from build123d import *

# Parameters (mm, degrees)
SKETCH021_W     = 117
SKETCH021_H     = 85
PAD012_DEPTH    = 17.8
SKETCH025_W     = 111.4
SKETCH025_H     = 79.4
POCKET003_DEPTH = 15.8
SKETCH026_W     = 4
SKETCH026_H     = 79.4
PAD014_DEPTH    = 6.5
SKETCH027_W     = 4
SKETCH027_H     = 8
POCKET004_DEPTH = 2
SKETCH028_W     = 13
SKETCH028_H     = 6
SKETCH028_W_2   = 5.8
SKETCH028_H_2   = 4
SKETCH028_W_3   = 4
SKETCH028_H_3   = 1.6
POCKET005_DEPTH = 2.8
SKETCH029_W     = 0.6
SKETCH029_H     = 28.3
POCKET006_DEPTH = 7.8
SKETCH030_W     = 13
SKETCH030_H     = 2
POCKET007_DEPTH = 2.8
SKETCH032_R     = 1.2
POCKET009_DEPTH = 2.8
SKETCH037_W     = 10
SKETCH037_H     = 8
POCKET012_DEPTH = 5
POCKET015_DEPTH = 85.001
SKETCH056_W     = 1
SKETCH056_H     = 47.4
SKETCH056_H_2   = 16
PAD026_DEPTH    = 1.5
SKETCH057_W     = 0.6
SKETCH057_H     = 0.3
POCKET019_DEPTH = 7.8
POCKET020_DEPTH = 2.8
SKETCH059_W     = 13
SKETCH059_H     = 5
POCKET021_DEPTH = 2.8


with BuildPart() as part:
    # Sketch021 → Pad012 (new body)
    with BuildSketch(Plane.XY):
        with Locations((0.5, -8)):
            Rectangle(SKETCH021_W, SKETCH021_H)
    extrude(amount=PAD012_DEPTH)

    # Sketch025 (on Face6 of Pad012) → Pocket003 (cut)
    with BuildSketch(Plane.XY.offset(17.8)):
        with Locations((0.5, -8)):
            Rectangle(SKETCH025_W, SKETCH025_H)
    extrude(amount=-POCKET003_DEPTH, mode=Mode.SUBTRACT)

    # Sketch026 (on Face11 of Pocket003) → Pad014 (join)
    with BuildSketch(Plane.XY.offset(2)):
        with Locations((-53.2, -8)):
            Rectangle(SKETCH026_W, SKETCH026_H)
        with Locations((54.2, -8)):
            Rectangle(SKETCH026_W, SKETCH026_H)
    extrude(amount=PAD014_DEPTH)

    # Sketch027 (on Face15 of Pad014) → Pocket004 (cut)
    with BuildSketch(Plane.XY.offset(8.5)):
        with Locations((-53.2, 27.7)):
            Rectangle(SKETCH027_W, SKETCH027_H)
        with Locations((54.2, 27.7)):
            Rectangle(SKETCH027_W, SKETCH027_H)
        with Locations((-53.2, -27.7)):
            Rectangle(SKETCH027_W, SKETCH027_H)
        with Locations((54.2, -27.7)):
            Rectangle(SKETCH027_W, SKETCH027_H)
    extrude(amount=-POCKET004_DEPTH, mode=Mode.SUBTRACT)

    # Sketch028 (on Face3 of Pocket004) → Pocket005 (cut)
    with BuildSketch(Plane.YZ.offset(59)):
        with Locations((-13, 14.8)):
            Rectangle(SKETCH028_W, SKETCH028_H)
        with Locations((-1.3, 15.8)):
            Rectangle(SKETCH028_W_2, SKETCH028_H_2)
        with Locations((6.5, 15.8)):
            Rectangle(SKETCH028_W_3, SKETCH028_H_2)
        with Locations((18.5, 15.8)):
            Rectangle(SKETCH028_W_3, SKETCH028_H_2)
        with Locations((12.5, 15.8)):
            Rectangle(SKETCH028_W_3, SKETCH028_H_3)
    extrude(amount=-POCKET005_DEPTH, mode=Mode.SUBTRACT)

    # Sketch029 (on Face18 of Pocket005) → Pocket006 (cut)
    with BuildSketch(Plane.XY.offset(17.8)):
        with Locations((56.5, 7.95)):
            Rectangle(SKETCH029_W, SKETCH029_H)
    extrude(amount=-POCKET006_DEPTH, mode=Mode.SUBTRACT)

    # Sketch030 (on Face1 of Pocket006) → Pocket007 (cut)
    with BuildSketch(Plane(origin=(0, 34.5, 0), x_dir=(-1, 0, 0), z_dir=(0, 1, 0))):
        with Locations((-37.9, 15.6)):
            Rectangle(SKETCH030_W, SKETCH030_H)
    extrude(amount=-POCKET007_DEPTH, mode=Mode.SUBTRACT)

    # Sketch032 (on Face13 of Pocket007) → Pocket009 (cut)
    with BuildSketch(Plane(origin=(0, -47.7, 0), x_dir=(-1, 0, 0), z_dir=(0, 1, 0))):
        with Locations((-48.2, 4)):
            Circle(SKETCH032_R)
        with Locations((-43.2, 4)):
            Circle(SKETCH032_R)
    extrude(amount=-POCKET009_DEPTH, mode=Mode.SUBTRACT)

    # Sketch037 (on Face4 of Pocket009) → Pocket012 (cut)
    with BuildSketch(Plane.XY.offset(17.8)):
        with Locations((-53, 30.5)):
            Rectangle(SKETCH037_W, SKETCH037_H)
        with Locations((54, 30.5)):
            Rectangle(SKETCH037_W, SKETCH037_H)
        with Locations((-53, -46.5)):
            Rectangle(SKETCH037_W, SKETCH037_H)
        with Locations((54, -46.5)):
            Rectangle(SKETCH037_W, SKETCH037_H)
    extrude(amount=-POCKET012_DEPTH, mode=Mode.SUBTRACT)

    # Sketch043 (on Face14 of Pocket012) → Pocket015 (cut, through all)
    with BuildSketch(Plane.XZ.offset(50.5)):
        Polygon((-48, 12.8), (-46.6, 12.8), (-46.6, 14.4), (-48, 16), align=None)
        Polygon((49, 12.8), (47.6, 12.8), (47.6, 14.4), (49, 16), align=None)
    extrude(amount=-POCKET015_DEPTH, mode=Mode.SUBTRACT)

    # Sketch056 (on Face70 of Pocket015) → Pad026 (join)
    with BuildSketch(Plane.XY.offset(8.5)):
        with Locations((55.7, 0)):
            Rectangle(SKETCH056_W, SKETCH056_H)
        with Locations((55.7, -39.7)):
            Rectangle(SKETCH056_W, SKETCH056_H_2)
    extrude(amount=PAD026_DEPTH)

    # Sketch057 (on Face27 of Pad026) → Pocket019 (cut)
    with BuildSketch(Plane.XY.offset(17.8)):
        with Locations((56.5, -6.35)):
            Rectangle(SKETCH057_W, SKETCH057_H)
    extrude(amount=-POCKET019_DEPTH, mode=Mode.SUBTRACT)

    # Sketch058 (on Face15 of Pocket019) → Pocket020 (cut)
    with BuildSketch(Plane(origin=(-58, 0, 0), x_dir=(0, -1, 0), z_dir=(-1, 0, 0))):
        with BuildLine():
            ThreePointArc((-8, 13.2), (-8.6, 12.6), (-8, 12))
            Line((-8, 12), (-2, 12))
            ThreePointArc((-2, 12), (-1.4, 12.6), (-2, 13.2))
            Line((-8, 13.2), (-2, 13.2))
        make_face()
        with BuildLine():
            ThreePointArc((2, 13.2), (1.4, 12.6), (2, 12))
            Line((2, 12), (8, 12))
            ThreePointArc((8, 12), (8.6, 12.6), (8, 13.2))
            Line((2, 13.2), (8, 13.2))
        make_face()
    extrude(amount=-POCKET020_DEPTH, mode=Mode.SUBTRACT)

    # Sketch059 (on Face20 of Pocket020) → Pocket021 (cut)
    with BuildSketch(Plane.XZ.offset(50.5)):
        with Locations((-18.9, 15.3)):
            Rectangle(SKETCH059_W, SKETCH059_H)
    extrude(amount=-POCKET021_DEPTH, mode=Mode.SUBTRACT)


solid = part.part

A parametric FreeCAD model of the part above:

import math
import FreeCAD as App
import Part
import Sketcher
Q = App.Units.Quantity

doc = App.newDocument("Part")
body = doc.addObject("PartDesign::Body", "Body")

# Sketch on XY plane
sketch1 = doc.addObject("Sketcher::SketchObject", "Sketch")
body.addObject(sketch1)
sketch1.AttachmentSupport = (doc.XY_Plane, [""])
sketch1.MapMode = "FlatFace"
sketch1.addGeometry([
    Part.LineSegment(App.Vector(-58, 34, 0), App.Vector(-58, -50, 0)),
    Part.LineSegment(App.Vector(-58, -50, 0), App.Vector(59, -50, 0)),
    Part.LineSegment(App.Vector(59, -50, 0), App.Vector(59, 34, 0)),
    Part.LineSegment(App.Vector(59, 34, 0), App.Vector(-58, 34, 0)),
], False)
sketch1.addConstraint([
    Sketcher.Constraint("Coincident", 0, 2, 1, 1),
    Sketcher.Constraint("Coincident", 1, 2, 2, 1),
    Sketcher.Constraint("Coincident", 2, 2, 3, 1),
    Sketcher.Constraint("Coincident", 3, 2, 0, 1),
    Sketcher.Constraint("Vertical", 0),
    Sketcher.Constraint("Horizontal", 1),
    Sketcher.Constraint("Vertical", 2),
    Sketcher.Constraint("Horizontal", 3),
    Sketcher.Constraint("DistanceX", 1, 1, 1, 2, Q("117 mm")),
    Sketcher.Constraint("DistanceY", 0, 2, 0, 1, Q("85 mm")),
    Sketcher.Constraint("DistanceX", 0, 2, -1, 1, Q("58 mm")),
    Sketcher.Constraint("DistanceY", 0, 2, -1, 1, Q("50.5 mm")),
])
pad1 = doc.addObject("PartDesign::Pad", "Pad")
body.addObject(pad1)
pad1.Profile = sketch1
pad1.Length = 17.8

# Sketch on XY plane
sketch2 = doc.addObject("Sketcher::SketchObject", "Sketch001")
body.addObject(sketch2)
sketch2.AttachmentSupport = (doc.XY_Plane, [""])
sketch2.MapMode = "FlatFace"
sketch2.AttachmentOffset = App.Placement(App.Vector(0, 0, 17.8), App.Rotation())
sketch2.addGeometry([
    Part.LineSegment(App.Vector(-55, 32, 0), App.Vector(-55, -48, 0)),
    Part.LineSegment(App.Vector(-55, -48, 0), App.Vector(56, -48, 0)),
    Part.LineSegment(App.Vector(56, -48, 0), App.Vector(56, 32, 0)),
    Part.LineSegment(App.Vector(56, 32, 0), App.Vector(-55, 32, 0)),
], False)
sketch2.addConstraint([
    Sketcher.Constraint("Coincident", 0, 2, 1, 1),
    Sketcher.Constraint("Coincident", 1, 2, 2, 1),
    Sketcher.Constraint("Coincident", 2, 2, 3, 1),
    Sketcher.Constraint("Coincident", 3, 2, 0, 1),
    Sketcher.Constraint("Vertical", 0),
    Sketcher.Constraint("Horizontal", 1),
    Sketcher.Constraint("Vertical", 2),
    Sketcher.Constraint("Horizontal", 3),
    Sketcher.Constraint("DistanceX", 1, 1, 1, 2, Q("111.4 mm")),
    Sketcher.Constraint("DistanceY", 0, 2, 0, 1, Q("79.4 mm")),
    Sketcher.Constraint("DistanceX", 0, 2, -1, 1, Q("55.2 mm")),
    Sketcher.Constraint("DistanceY", 0, 2, -1, 1, Q("47.7 mm")),
])
pocket1 = doc.addObject("PartDesign::Pocket", "Pocket")
body.addObject(pocket1)
pocket1.Profile = sketch2
pocket1.Length = 15.8

# Sketch on XY plane
sketch3 = doc.addObject("Sketcher::SketchObject", "Sketch002")
body.addObject(sketch3)
sketch3.AttachmentSupport = (doc.XY_Plane, [""])
sketch3.MapMode = "FlatFace"
sketch3.AttachmentOffset = App.Placement(App.Vector(0, 0, 2), App.Rotation())
sketch3.addGeometry([
    Part.LineSegment(App.Vector(-55.2, 31.7, 0), App.Vector(-55.2, -47.7, 0)),  # 0
    Part.LineSegment(App.Vector(-55.2, -47.7, 0), App.Vector(-51.2, -47.7, 0)),  # 1
    Part.LineSegment(App.Vector(-51.2, -47.7, 0), App.Vector(-51.2, 31.7, 0)),  # 2
    Part.LineSegment(App.Vector(-51.2, 31.7, 0), App.Vector(-55.2, 31.7, 0)),  # 3
    Part.LineSegment(App.Vector(52.2, 31.7, 0), App.Vector(52.2, -47.7, 0)),  # 4
    Part.LineSegment(App.Vector(52.2, -47.7, 0), App.Vector(56.2, -47.7, 0)),  # 5
    Part.LineSegment(App.Vector(56.2, -47.7, 0), App.Vector(56.2, 31.7, 0)),  # 6
    Part.LineSegment(App.Vector(56.2, 31.7, 0), App.Vector(52.2, 31.7, 0)),  # 7
], False)
sketch3.addConstraint([
    Sketcher.Constraint("Coincident", 0, 2, 1, 1),
    Sketcher.Constraint("Coincident", 1, 2, 2, 1),
    Sketcher.Constraint("Coincident", 2, 2, 3, 1),
    Sketcher.Constraint("Coincident", 3, 2, 0, 1),
    Sketcher.Constraint("Coincident", 4, 2, 5, 1),
    Sketcher.Constraint("Coincident", 5, 2, 6, 1),
    Sketcher.Constraint("Coincident", 6, 2, 7, 1),
    Sketcher.Constraint("Coincident", 7, 2, 4, 1),
    Sketcher.Constraint("Vertical", 0),
    Sketcher.Constraint("Horizontal", 1),
    Sketcher.Constraint("Vertical", 2),
    Sketcher.Constraint("Horizontal", 3),
    Sketcher.Constraint("Vertical", 4),
    Sketcher.Constraint("Horizontal", 5),
    Sketcher.Constraint("Vertical", 6),
    Sketcher.Constraint("Horizontal", 7),
    Sketcher.Constraint("Horizontal", 1, 2, 4, 2),
    Sketcher.Constraint("Horizontal", 3, 2, 6, 2),
    Sketcher.Constraint("Equal", 3, 5),
    Sketcher.Constraint("DistanceX", 1, 1, 1, 2, Q("4 mm")),
    Sketcher.Constraint("DistanceY", 0, 2, 0, 1, Q("79.4 mm")),
    Sketcher.Constraint("DistanceX", 0, 2, -1, 1, Q("55.2 mm")),
    Sketcher.Constraint("DistanceY", 0, 2, -1, 1, Q("47.7 mm")),
    Sketcher.Constraint("DistanceX", -1, 1, 4, 2, Q("52.2 mm")),
])
pad2 = doc.addObject("PartDesign::Pad", "Pad001")
body.addObject(pad2)
pad2.Profile = sketch3
pad2.Length = 6.5

# Sketch on XY plane
sketch4 = doc.addObject("Sketcher::SketchObject", "Sketch003")
body.addObject(sketch4)
sketch4.AttachmentSupport = (doc.XY_Plane, [""])
sketch4.MapMode = "FlatFace"
sketch4.AttachmentOffset = App.Placement(App.Vector(0, 0, 8.5), App.Rotation())
sketch4.addGeometry([
    Part.LineSegment(App.Vector(-55.2, 31.7, 0), App.Vector(-55.2, 23.7, 0)),  # 0
    Part.LineSegment(App.Vector(-55.2, 23.7, 0), App.Vector(-51.2, 23.7, 0)),  # 1
    Part.LineSegment(App.Vector(-51.2, 23.7, 0), App.Vector(-51.2, 31.7, 0)),  # 2
    Part.LineSegment(App.Vector(-51.2, 31.7, 0), App.Vector(-55.2, 31.7, 0)),  # 3
    Part.LineSegment(App.Vector(52.2, 31.7, 0), App.Vector(52.2, 23.7, 0)),  # 4
    Part.LineSegment(App.Vector(52.2, 23.7, 0), App.Vector(56.2, 23.7, 0)),  # 5
    Part.LineSegment(App.Vector(56.2, 23.7, 0), App.Vector(56.2, 31.7, 0)),  # 6
    Part.LineSegment(App.Vector(56.2, 31.7, 0), App.Vector(52.2, 31.7, 0)),  # 7
    Part.LineSegment(App.Vector(-55.2, -23.7, 0), App.Vector(-55.2, -31.7, 0)),  # 8
    Part.LineSegment(App.Vector(-55.2, -31.7, 0), App.Vector(-51.2, -31.7, 0)),  # 9
    Part.LineSegment(App.Vector(-51.2, -31.7, 0), App.Vector(-51.2, -23.7, 0)),  # 10
    Part.LineSegment(App.Vector(-51.2, -23.7, 0), App.Vector(-55.2, -23.7, 0)),  # 11
    Part.LineSegment(App.Vector(52.2, -23.7, 0), App.Vector(52.2, -31.7, 0)),  # 12
    Part.LineSegment(App.Vector(52.2, -31.7, 0), App.Vector(56.2, -31.7, 0)),  # 13
    Part.LineSegment(App.Vector(56.2, -31.7, 0), App.Vector(56.2, -23.7, 0)),  # 14
    Part.LineSegment(App.Vector(56.2, -23.7, 0), App.Vector(52.2, -23.7, 0)),  # 15
], False)
sketch4.addConstraint([
    Sketcher.Constraint("Coincident", 0, 2, 1, 1),
    Sketcher.Constraint("Coincident", 1, 2, 2, 1),
    Sketcher.Constraint("Coincident", 2, 2, 3, 1),
    Sketcher.Constraint("Coincident", 3, 2, 0, 1),
    Sketcher.Constraint("Coincident", 4, 2, 5, 1),
    Sketcher.Constraint("Coincident", 5, 2, 6, 1),
    Sketcher.Constraint("Coincident", 6, 2, 7, 1),
    Sketcher.Constraint("Coincident", 7, 2, 4, 1),
    Sketcher.Constraint("Coincident", 8, 2, 9, 1),
    Sketcher.Constraint("Coincident", 9, 2, 10, 1),
    Sketcher.Constraint("Coincident", 10, 2, 11, 1),
    Sketcher.Constraint("Coincident", 11, 2, 8, 1),
    Sketcher.Constraint("Coincident", 12, 2, 13, 1),
    Sketcher.Constraint("Coincident", 13, 2, 14, 1),
    Sketcher.Constraint("Coincident", 14, 2, 15, 1),
    Sketcher.Constraint("Coincident", 15, 2, 12, 1),
    Sketcher.Constraint("Vertical", 0),
    Sketcher.Constraint("Horizontal", 1),
    Sketcher.Constraint("Vertical", 2),
    Sketcher.Constraint("Horizontal", 3),
    Sketcher.Constraint("Vertical", 4),
    Sketcher.Constraint("Horizontal", 5),
    Sketcher.Constraint("Vertical", 6),
    Sketcher.Constraint("Horizontal", 7),
    Sketcher.Constraint("Vertical", 8),
    Sketcher.Constraint("Horizontal", 9),
    Sketcher.Constraint("Vertical", 10),
    Sketcher.Constraint("Horizontal", 11),
    Sketcher.Constraint("Vertical", 12),
    Sketcher.Constraint("Horizontal", 13),
    Sketcher.Constraint("Vertical", 14),
    Sketcher.Constraint("Horizontal", 15),
    Sketcher.Constraint("Symmetric", 3, 2, 8, 2, -1),
    Sketcher.Constraint("Symmetric", 1, 2, 10, 2, -1),
    Sketcher.Constraint("Symmetric", 7, 2, 12, 2, -1),
    Sketcher.Constraint("Symmetric", 5, 2, 14, 2, -1),
    Sketcher.Constraint("Horizontal", 1, 2, 4, 2),
    Sketcher.Constraint("Horizontal", 3, 2, 6, 2),
    Sketcher.Constraint("Equal", 3, 5),
    Sketcher.Constraint("DistanceX", 1, 1, 1, 2, Q("4 mm")),
    Sketcher.Constraint("DistanceY", 0, 2, 0, 1, Q("8 mm")),
    Sketcher.Constraint("DistanceX", 0, 2, -1, 1, Q("55.2 mm")),
    Sketcher.Constraint("DistanceY", -1, 1, 0, 2, Q("23.7 mm")),
    Sketcher.Constraint("DistanceX", -1, 1, 4, 2, Q("52.2 mm")),
])
pocket2 = doc.addObject("PartDesign::Pocket", "Pocket001")
body.addObject(pocket2)
pocket2.Profile = sketch4
pocket2.Length = 2

# Sketch on YZ plane
sketch5 = doc.addObject("Sketcher::SketchObject", "Sketch004")
body.addObject(sketch5)
sketch5.AttachmentSupport = (doc.YZ_Plane, [""])
sketch5.MapMode = "FlatFace"
sketch5.AttachmentOffset = App.Placement(App.Vector(0, 0, 59), App.Rotation())
sketch5.addGeometry([
    Part.LineSegment(App.Vector(-19.5, 17.8, 0), App.Vector(-19.5, 11.8, 0)),  # 0
    Part.LineSegment(App.Vector(-19.5, 11.8, 0), App.Vector(-6.5, 11.8, 0)),  # 1
    Part.LineSegment(App.Vector(-6.5, 11.8, 0), App.Vector(-6.5, 17.8, 0)),  # 2
    Part.LineSegment(App.Vector(-6.5, 17.8, 0), App.Vector(-19.5, 17.8, 0)),  # 3
    Part.LineSegment(App.Vector(-4.2, 17.8, 0), App.Vector(-4.2, 13.8, 0)),  # 4
    Part.LineSegment(App.Vector(-4.2, 13.8, 0), App.Vector(1.6, 13.8, 0)),  # 5
    Part.LineSegment(App.Vector(1.6, 13.8, 0), App.Vector(1.6, 17.8, 0)),  # 6
    Part.LineSegment(App.Vector(1.6, 17.8, 0), App.Vector(-4.2, 17.8, 0)),  # 7
    Part.LineSegment(App.Vector(4.5, 17.8, 0), App.Vector(4.5, 13.8, 0)),  # 8
    Part.LineSegment(App.Vector(4.5, 13.8, 0), App.Vector(8.5, 13.8, 0)),  # 9
    Part.LineSegment(App.Vector(8.5, 13.8, 0), App.Vector(8.5, 17.8, 0)),  # 10
    Part.LineSegment(App.Vector(8.5, 17.8, 0), App.Vector(4.5, 17.8, 0)),  # 11
    Part.LineSegment(App.Vector(16.5, 17.8, 0), App.Vector(16.5, 13.8, 0)),  # 12
    Part.LineSegment(App.Vector(16.5, 13.8, 0), App.Vector(20.5, 13.8, 0)),  # 13
    Part.LineSegment(App.Vector(20.5, 13.8, 0), App.Vector(20.5, 17.8, 0)),  # 14
    Part.LineSegment(App.Vector(20.5, 17.8, 0), App.Vector(16.5, 17.8, 0)),  # 15
    Part.LineSegment(App.Vector(10.5, 16.6, 0), App.Vector(10.5, 15, 0)),  # 16
    Part.LineSegment(App.Vector(10.5, 15, 0), App.Vector(14.5, 15, 0)),  # 17
    Part.LineSegment(App.Vector(14.5, 15, 0), App.Vector(14.5, 16.6, 0)),  # 18
    Part.LineSegment(App.Vector(14.5, 16.6, 0), App.Vector(10.5, 16.6, 0)),  # 19
], False)
sketch5.addConstraint([
    Sketcher.Constraint("Coincident", 0, 2, 1, 1),
    Sketcher.Constraint("Coincident", 1, 2, 2, 1),
    Sketcher.Constraint("Coincident", 2, 2, 3, 1),
    Sketcher.Constraint("Coincident", 3, 2, 0, 1),
    Sketcher.Constraint("Coincident", 4, 2, 5, 1),
    Sketcher.Constraint("Coincident", 5, 2, 6, 1),
    Sketcher.Constraint("Coincident", 6, 2, 7, 1),
    Sketcher.Constraint("Coincident", 7, 2, 4, 1),
    Sketcher.Constraint("Coincident", 8, 2, 9, 1),
    Sketcher.Constraint("Coincident", 9, 2, 10, 1),
    Sketcher.Constraint("Coincident", 10, 2, 11, 1),
    Sketcher.Constraint("Coincident", 11, 2, 8, 1),
    Sketcher.Constraint("Coincident", 12, 2, 13, 1),
    Sketcher.Constraint("Coincident", 13, 2, 14, 1),
    Sketcher.Constraint("Coincident", 14, 2, 15, 1),
    Sketcher.Constraint("Coincident", 15, 2, 12, 1),
    Sketcher.Constraint("Coincident", 16, 2, 17, 1),
    Sketcher.Constraint("Coincident", 17, 2, 18, 1),
    Sketcher.Constraint("Coincident", 18, 2, 19, 1),
    Sketcher.Constraint("Coincident", 19, 2, 16, 1),
    Sketcher.Constraint("Vertical", 0),
    Sketcher.Constraint("Horizontal", 1),
    Sketcher.Constraint("Vertical", 2),
    Sketcher.Constraint("Horizontal", 3),
    Sketcher.Constraint("Vertical", 4),
    Sketcher.Constraint("Horizontal", 5),
    Sketcher.Constraint("Vertical", 6),
    Sketcher.Constraint("Horizontal", 7),
    Sketcher.Constraint("Vertical", 8),
    Sketcher.Constraint("Horizontal", 9),
    Sketcher.Constraint("Vertical", 10),
    Sketcher.Constraint("Horizontal", 11),
    Sketcher.Constraint("Vertical", 12),
    Sketcher.Constraint("Horizontal", 13),
    Sketcher.Constraint("Vertical", 14),
    Sketcher.Constraint("Horizontal", 15),
    Sketcher.Constraint("Vertical", 16),
    Sketcher.Constraint("Horizontal", 17),
    Sketcher.Constraint("Vertical", 18),
    Sketcher.Constraint("Horizontal", 19),
    Sketcher.Constraint("Horizontal", 3, 2, 6, 2),
    Sketcher.Constraint("Horizontal", 5, 2, 8, 2),
    Sketcher.Constraint("Horizontal", 7, 2, 10, 2),
    Sketcher.Constraint("Horizontal", 9, 2, 12, 2),
    Sketcher.Constraint("Horizontal", 11, 2, 14, 2),
    Sketcher.Constraint("Equal", 11, 13),
    Sketcher.Constraint("Equal", 15, 17),
    Sketcher.Constraint("Equal", 19, 4),
    Sketcher.Constraint("DistanceX", 1, 1, 1, 2, Q("13 mm")),
    Sketcher.Constraint("DistanceX", 9, 1, 9, 2, Q("4 mm")),
    Sketcher.Constraint("DistanceY", 0, 2, 0, 1, Q("6 mm")),
    Sketcher.Constraint("DistanceX", 5, 1, 5, 2, Q("5.8 mm")),
    Sketcher.Constraint("DistanceY", 16, 2, 16, 1, Q("1.6 mm")),
    Sketcher.Constraint("DistanceY", -1, 1, 16, 2, Q("15 mm")),
    Sketcher.Constraint("DistanceX", 1, 2, 8, 2, Q("11 mm")),
    Sketcher.Constraint("DistanceX", 9, 2, 12, 2, Q("8 mm")),
    Sketcher.Constraint("DistanceX", 9, 2, 16, 2, Q("2 mm")),
    Sketcher.Constraint("DistanceX", 0, 2, -1, 1, Q("19.5 mm")),
    Sketcher.Constraint("DistanceY", -1, 1, 0, 2, Q("11.8 mm")),
    Sketcher.Constraint("DistanceX", 4, 2, -1, 1, Q("4.2 mm")),
])
pocket3 = doc.addObject("PartDesign::Pocket", "Pocket002")
body.addObject(pocket3)
pocket3.Profile = sketch5
pocket3.Length = 2.8

# Sketch on XY plane
sketch6 = doc.addObject("Sketcher::SketchObject", "Sketch005")
body.addObject(sketch6)
sketch6.AttachmentSupport = (doc.XY_Plane, [""])
sketch6.MapMode = "FlatFace"
sketch6.AttachmentOffset = App.Placement(App.Vector(0, 0, 17.8), App.Rotation())
sketch6.addGeometry([
    Part.LineSegment(App.Vector(56.2, 22.1, 0), App.Vector(56.2, -6.2, 0)),
    Part.LineSegment(App.Vector(56.2, -6.2, 0), App.Vector(56.8, -6.2, 0)),
    Part.LineSegment(App.Vector(56.8, -6.2, 0), App.Vector(56.8, 22.1, 0)),
    Part.LineSegment(App.Vector(56.8, 22.1, 0), App.Vector(56.2, 22.1, 0)),
], False)
sketch6.addConstraint([
    Sketcher.Constraint("Coincident", 0, 2, 1, 1),
    Sketcher.Constraint("Coincident", 1, 2, 2, 1),
    Sketcher.Constraint("Coincident", 2, 2, 3, 1),
    Sketcher.Constraint("Coincident", 3, 2, 0, 1),
    Sketcher.Constraint("Vertical", 0),
    Sketcher.Constraint("Horizontal", 1),
    Sketcher.Constraint("Vertical", 2),
    Sketcher.Constraint("Horizontal", 3),
    Sketcher.Constraint("DistanceX", 1, 1, 1, 2, Q("0.6 mm")),
    Sketcher.Constraint("DistanceY", 0, 2, 0, 1, Q("28.3 mm")),
    Sketcher.Constraint("DistanceX", -1, 1, 0, 2, Q("56.2 mm")),
    Sketcher.Constraint("DistanceY", 0, 2, -1, 1, Q("6.2 mm")),
])
pocket4 = doc.addObject("PartDesign::Pocket", "Pocket003")
body.addObject(pocket4)
pocket4.Profile = sketch6
pocket4.Length = 7.8

# Sketch on XZ plane
sketch7 = doc.addObject("Sketcher::SketchObject", "Sketch006")
body.addObject(sketch7)
sketch7.AttachmentSupport = (doc.XZ_Plane, [""])
sketch7.MapMode = "FlatFace"
sketch7.AttachmentOffset = App.Placement(App.Vector(0, 0, -34.5), App.Rotation())
sketch7.addGeometry([
    Part.LineSegment(App.Vector(44.4, 16.6, 0), App.Vector(44.4, 14.6, 0)),
    Part.LineSegment(App.Vector(44.4, 14.6, 0), App.Vector(31.4, 14.6, 0)),
    Part.LineSegment(App.Vector(31.4, 14.6, 0), App.Vector(31.4, 16.6, 0)),
    Part.LineSegment(App.Vector(31.4, 16.6, 0), App.Vector(44.4, 16.6, 0)),
], False)
sketch7.addConstraint([
    Sketcher.Constraint("Coincident", 0, 2, 1, 1),
    Sketcher.Constraint("Coincident", 1, 2, 2, 1),
    Sketcher.Constraint("Coincident", 2, 2, 3, 1),
    Sketcher.Constraint("Coincident", 3, 2, 0, 1),
    Sketcher.Constraint("Vertical", 0),
    Sketcher.Constraint("Horizontal", 1),
    Sketcher.Constraint("Vertical", 2),
    Sketcher.Constraint("Horizontal", 3),
    Sketcher.Constraint("DistanceX", 1, 2, 1, 1, Q("13 mm")),
    Sketcher.Constraint("DistanceY", 0, 2, 0, 1, Q("2 mm")),
    Sketcher.Constraint("DistanceX", -1, 1, 0, 2, Q("44.4 mm")),
    Sketcher.Constraint("DistanceY", -1, 1, 0, 2, Q("14.6 mm")),
])
pocket5 = doc.addObject("PartDesign::Pocket", "Pocket004")
body.addObject(pocket5)
pocket5.Profile = sketch7
pocket5.Length = 2.8
pocket5.Reversed = True

# Sketch on XZ plane
sketch8 = doc.addObject("Sketcher::SketchObject", "Sketch007")
body.addObject(sketch8)
sketch8.AttachmentSupport = (doc.XZ_Plane, [""])
sketch8.MapMode = "FlatFace"
sketch8.AttachmentOffset = App.Placement(App.Vector(0, 0, 47.7), App.Rotation())
sketch8.addGeometry([
    Part.Circle(App.Vector(48.2, 4, 0), App.Vector(0, 0, 1), 1.2),
    Part.Circle(App.Vector(43.2, 4, 0), App.Vector(0, 0, 1), 1.2),
], False)
sketch8.addConstraint([
    Sketcher.Constraint("Equal", 0, 1),
    Sketcher.Constraint("Horizontal", 0, 3, 1, 3),
    Sketcher.Constraint("Diameter", 0, Q("2.4 mm")),
    Sketcher.Constraint("DistanceY", -1, 1, 0, 3, Q("4 mm")),
    Sketcher.Constraint("DistanceX", 1, 3, 0, 3, Q("5 mm")),
    Sketcher.Constraint("DistanceX", -1, 1, 0, 3, Q("48.2 mm")),
])
pocket6 = doc.addObject("PartDesign::Pocket", "Pocket005")
body.addObject(pocket6)
pocket6.Profile = sketch8
pocket6.Length = 2.8
pocket6.Reversed = True

# Sketch on XY plane
sketch9 = doc.addObject("Sketcher::SketchObject", "Sketch008")
body.addObject(sketch9)
sketch9.AttachmentSupport = (doc.XY_Plane, [""])
sketch9.MapMode = "FlatFace"
sketch9.AttachmentOffset = App.Placement(App.Vector(0, 0, 17.8), App.Rotation())
sketch9.addGeometry([
    Part.LineSegment(App.Vector(-58, 34, 0), App.Vector(-58, 26, 0)),  # 0
    Part.LineSegment(App.Vector(-58, 26, 0), App.Vector(-48, 26, 0)),  # 1
    Part.LineSegment(App.Vector(-48, 26, 0), App.Vector(-48, 34, 0)),  # 2
    Part.LineSegment(App.Vector(-48, 34, 0), App.Vector(-58, 34, 0)),  # 3
    Part.LineSegment(App.Vector(49, 34, 0), App.Vector(49, 26, 0)),  # 4
    Part.LineSegment(App.Vector(49, 26, 0), App.Vector(59, 26, 0)),  # 5
    Part.LineSegment(App.Vector(59, 26, 0), App.Vector(59, 34, 0)),  # 6
    Part.LineSegment(App.Vector(59, 34, 0), App.Vector(49, 34, 0)),  # 7
    Part.LineSegment(App.Vector(-58, -42, 0), App.Vector(-58, -50, 0)),  # 8
    Part.LineSegment(App.Vector(-58, -50, 0), App.Vector(-48, -50, 0)),  # 9
    Part.LineSegment(App.Vector(-48, -50, 0), App.Vector(-48, -42, 0)),  # 10
    Part.LineSegment(App.Vector(-48, -42, 0), App.Vector(-58, -42, 0)),  # 11
    Part.LineSegment(App.Vector(49, -42, 0), App.Vector(49, -50, 0)),  # 12
    Part.LineSegment(App.Vector(49, -50, 0), App.Vector(59, -50, 0)),  # 13
    Part.LineSegment(App.Vector(59, -50, 0), App.Vector(59, -42, 0)),  # 14
    Part.LineSegment(App.Vector(59, -42, 0), App.Vector(49, -42, 0)),  # 15
], False)
sketch9.addConstraint([
    Sketcher.Constraint("Coincident", 0, 2, 1, 1),
    Sketcher.Constraint("Coincident", 1, 2, 2, 1),
    Sketcher.Constraint("Coincident", 2, 2, 3, 1),
    Sketcher.Constraint("Coincident", 3, 2, 0, 1),
    Sketcher.Constraint("Coincident", 4, 2, 5, 1),
    Sketcher.Constraint("Coincident", 5, 2, 6, 1),
    Sketcher.Constraint("Coincident", 6, 2, 7, 1),
    Sketcher.Constraint("Coincident", 7, 2, 4, 1),
    Sketcher.Constraint("Coincident", 8, 2, 9, 1),
    Sketcher.Constraint("Coincident", 9, 2, 10, 1),
    Sketcher.Constraint("Coincident", 10, 2, 11, 1),
    Sketcher.Constraint("Coincident", 11, 2, 8, 1),
    Sketcher.Constraint("Coincident", 12, 2, 13, 1),
    Sketcher.Constraint("Coincident", 13, 2, 14, 1),
    Sketcher.Constraint("Coincident", 14, 2, 15, 1),
    Sketcher.Constraint("Coincident", 15, 2, 12, 1),
    Sketcher.Constraint("Vertical", 0),
    Sketcher.Constraint("Horizontal", 1),
    Sketcher.Constraint("Vertical", 2),
    Sketcher.Constraint("Horizontal", 3),
    Sketcher.Constraint("Vertical", 4),
    Sketcher.Constraint("Horizontal", 5),
    Sketcher.Constraint("Vertical", 6),
    Sketcher.Constraint("Horizontal", 7),
    Sketcher.Constraint("Vertical", 8),
    Sketcher.Constraint("Horizontal", 9),
    Sketcher.Constraint("Vertical", 10),
    Sketcher.Constraint("Horizontal", 11),
    Sketcher.Constraint("Vertical", 12),
    Sketcher.Constraint("Horizontal", 13),
    Sketcher.Constraint("Vertical", 14),
    Sketcher.Constraint("Horizontal", 15),
    Sketcher.Constraint("Horizontal", 1, 2, 4, 2),
    Sketcher.Constraint("Horizontal", 3, 2, 6, 2),
    Sketcher.Constraint("Horizontal", 9, 2, 12, 2),
    Sketcher.Constraint("Horizontal", 11, 2, 14, 2),
    Sketcher.Constraint("Vertical", 3, 2, 8, 2),
    Sketcher.Constraint("Vertical", 2, 2, 9, 2),
    Sketcher.Constraint("Vertical", 7, 2, 12, 2),
    Sketcher.Constraint("Vertical", 6, 2, 13, 2),
    Sketcher.Constraint("Equal", 3, 5),
    Sketcher.Constraint("Equal", 6, 8),
    Sketcher.Constraint("DistanceX", 1, 1, 1, 2, Q("10 mm")),
    Sketcher.Constraint("DistanceY", 0, 2, 0, 1, Q("8 mm")),
    Sketcher.Constraint("DistanceX", 0, 2, -1, 1, Q("58 mm")),
    Sketcher.Constraint("DistanceX", -1, 1, 4, 2, Q("49 mm")),
    Sketcher.Constraint("DistanceY", 8, 2, 0, 2, Q("77 mm")),
    Sketcher.Constraint("DistanceY", -1, 1, 0, 2, Q("26.5 mm")),
])
pocket7 = doc.addObject("PartDesign::Pocket", "Pocket006")
body.addObject(pocket7)
pocket7.Profile = sketch9
pocket7.Length = 5

# Sketch on XZ plane
sketch10 = doc.addObject("Sketcher::SketchObject", "Sketch009")
body.addObject(sketch10)
sketch10.AttachmentSupport = (doc.XZ_Plane, [""])
sketch10.MapMode = "FlatFace"
sketch10.AttachmentOffset = App.Placement(App.Vector(0, 0, 50.5), App.Rotation())
sketch10.addGeometry([
    Part.LineSegment(App.Vector(-48, 12.8, 0), App.Vector(-46.6, 12.8, 0)),  # 0
    Part.LineSegment(App.Vector(-46.6, 12.8, 0), App.Vector(-46.6, 14.4, 0)),  # 1
    Part.LineSegment(App.Vector(-46.6, 14.4, 0), App.Vector(-48, 16, 0)),  # 2
    Part.LineSegment(App.Vector(-48, 16, 0), App.Vector(-48, 12.8, 0)),  # 3
    Part.LineSegment(App.Vector(47.6, 12.8, 0), App.Vector(49, 12.8, 0)),  # 4
    Part.LineSegment(App.Vector(49, 12.8, 0), App.Vector(49, 16, 0)),  # 5
    Part.LineSegment(App.Vector(49, 16, 0), App.Vector(47.6, 14.4, 0)),  # 6
    Part.LineSegment(App.Vector(47.6, 14.4, 0), App.Vector(47.6, 12.8, 0)),  # 7
], False)
sketch10.addConstraint([
    Sketcher.Constraint("Coincident", 0, 2, 1, 1),
    Sketcher.Constraint("Coincident", 1, 2, 2, 1),
    Sketcher.Constraint("Coincident", 2, 2, 3, 1),
    Sketcher.Constraint("Coincident", 3, 2, 0, 1),
    Sketcher.Constraint("Coincident", 4, 2, 5, 1),
    Sketcher.Constraint("Coincident", 5, 2, 6, 1),
    Sketcher.Constraint("Coincident", 6, 2, 7, 1),
    Sketcher.Constraint("Coincident", 7, 2, 4, 1),
    Sketcher.Constraint("Horizontal", 0),
    Sketcher.Constraint("Vertical", 1),
    Sketcher.Constraint("Vertical", 3),
    Sketcher.Constraint("Horizontal", 4),
    Sketcher.Constraint("Vertical", 5),
    Sketcher.Constraint("Vertical", 7),
    Sketcher.Constraint("Horizontal", 3, 2, 4, 2),
    Sketcher.Constraint("Horizontal", 2, 2, 5, 2),
    Sketcher.Constraint("Horizontal", 1, 2, 6, 2),
    Sketcher.Constraint("Equal", 0, 4),
    Sketcher.Constraint("DistanceX", 0, 1, 0, 2, Q("1.4 mm")),
    Sketcher.Constraint("DistanceY", 1, 1, 1, 2, Q("1.6 mm")),
    Sketcher.Constraint("DistanceY", 3, 2, 3, 1, Q("3.2 mm")),
    Sketcher.Constraint("DistanceX", 2, 2, -1, 1, Q("48 mm")),
    Sketcher.Constraint("DistanceY", -1, 1, 2, 2, Q("16 mm")),
    Sketcher.Constraint("DistanceX", -1, 1, 4, 2, Q("49 mm")),
])
pocket8 = doc.addObject("PartDesign::Pocket", "Pocket007")
body.addObject(pocket8)
pocket8.Profile = sketch10
pocket8.Type = "ThroughAll"

# Sketch on XY plane
sketch11 = doc.addObject("Sketcher::SketchObject", "Sketch010")
body.addObject(sketch11)
sketch11.AttachmentSupport = (doc.XY_Plane, [""])
sketch11.MapMode = "FlatFace"
sketch11.AttachmentOffset = App.Placement(App.Vector(0, 0, 8.5), App.Rotation())
sketch11.addGeometry([
    Part.LineSegment(App.Vector(55.2, 23.7, 0), App.Vector(55.2, -23.7, 0)),  # 0
    Part.LineSegment(App.Vector(55.2, -23.7, 0), App.Vector(56.2, -23.7, 0)),  # 1
    Part.LineSegment(App.Vector(56.2, -23.7, 0), App.Vector(56.2, 23.7, 0)),  # 2
    Part.LineSegment(App.Vector(56.2, 23.7, 0), App.Vector(55.2, 23.7, 0)),  # 3
    Part.LineSegment(App.Vector(55.2, -31.7, 0), App.Vector(55.2, -47.7, 0)),  # 4
    Part.LineSegment(App.Vector(55.2, -47.7, 0), App.Vector(56.2, -47.7, 0)),  # 5
    Part.LineSegment(App.Vector(56.2, -47.7, 0), App.Vector(56.2, -31.7, 0)),  # 6
    Part.LineSegment(App.Vector(56.2, -31.7, 0), App.Vector(55.2, -31.7, 0)),  # 7
], False)
sketch11.addConstraint([
    Sketcher.Constraint("Coincident", 0, 2, 1, 1),
    Sketcher.Constraint("Coincident", 1, 2, 2, 1),
    Sketcher.Constraint("Coincident", 2, 2, 3, 1),
    Sketcher.Constraint("Coincident", 3, 2, 0, 1),
    Sketcher.Constraint("Coincident", 4, 2, 5, 1),
    Sketcher.Constraint("Coincident", 5, 2, 6, 1),
    Sketcher.Constraint("Coincident", 6, 2, 7, 1),
    Sketcher.Constraint("Coincident", 7, 2, 4, 1),
    Sketcher.Constraint("Vertical", 0),
    Sketcher.Constraint("Horizontal", 1),
    Sketcher.Constraint("Vertical", 2),
    Sketcher.Constraint("Horizontal", 3),
    Sketcher.Constraint("Vertical", 4),
    Sketcher.Constraint("Horizontal", 5),
    Sketcher.Constraint("Vertical", 6),
    Sketcher.Constraint("Horizontal", 7),
    Sketcher.Constraint("Vertical", 3, 2, 4, 2),
    Sketcher.Constraint("Vertical", 2, 2, 5, 2),
    Sketcher.Constraint("DistanceX", 1, 1, 1, 2, Q("1 mm")),
    Sketcher.Constraint("DistanceY", 4, 2, 4, 1, Q("16 mm")),
    Sketcher.Constraint("DistanceY", 0, 2, 0, 1, Q("47.4 mm")),
    Sketcher.Constraint("DistanceY", 4, 2, 0, 2, Q("24 mm")),
    Sketcher.Constraint("DistanceX", -1, 1, 0, 2, Q("55.2 mm")),
    Sketcher.Constraint("DistanceY", 0, 2, -1, 1, Q("23.7 mm")),
])
pad3 = doc.addObject("PartDesign::Pad", "Pad002")
body.addObject(pad3)
pad3.Profile = sketch11
pad3.Length = 1.5

# Sketch on XY plane
sketch12 = doc.addObject("Sketcher::SketchObject", "Sketch011")
body.addObject(sketch12)
sketch12.AttachmentSupport = (doc.XY_Plane, [""])
sketch12.MapMode = "FlatFace"
sketch12.AttachmentOffset = App.Placement(App.Vector(0, 0, 17.8), App.Rotation())
sketch12.addGeometry([
    Part.LineSegment(App.Vector(56.2, -6.2, 0), App.Vector(56.2, -6.5, 0)),
    Part.LineSegment(App.Vector(56.2, -6.5, 0), App.Vector(56.8, -6.5, 0)),
    Part.LineSegment(App.Vector(56.8, -6.5, 0), App.Vector(56.8, -6.2, 0)),
    Part.LineSegment(App.Vector(56.8, -6.2, 0), App.Vector(56.2, -6.2, 0)),
], False)
sketch12.addConstraint([
    Sketcher.Constraint("Coincident", 0, 2, 1, 1),
    Sketcher.Constraint("Coincident", 1, 2, 2, 1),
    Sketcher.Constraint("Coincident", 2, 2, 3, 1),
    Sketcher.Constraint("Coincident", 3, 2, 0, 1),
    Sketcher.Constraint("Vertical", 0),
    Sketcher.Constraint("Horizontal", 1),
    Sketcher.Constraint("Vertical", 2),
    Sketcher.Constraint("Horizontal", 3),
    Sketcher.Constraint("DistanceX", 1, 1, 1, 2, Q("0.6 mm")),
    Sketcher.Constraint("DistanceY", 0, 2, 0, 1, Q("0.3 mm")),
    Sketcher.Constraint("DistanceX", -1, 1, 0, 2, Q("56.2 mm")),
    Sketcher.Constraint("DistanceY", 0, 2, -1, 1, Q("6.5 mm")),
])
pocket9 = doc.addObject("PartDesign::Pocket", "Pocket008")
body.addObject(pocket9)
pocket9.Profile = sketch12
pocket9.Length = 7.8

# Sketch on YZ plane
sketch13 = doc.addObject("Sketcher::SketchObject", "Sketch012")
body.addObject(sketch13)
sketch13.AttachmentSupport = (doc.YZ_Plane, [""])
sketch13.MapMode = "FlatFace"
sketch13.AttachmentOffset = App.Placement(App.Vector(0, 0, -58), App.Rotation())
sketch13.addGeometry([
    Part.ArcOfCircle(Part.Circle(App.Vector(8, 12.6, 0), App.Vector(0, 0, 1), 0.6), math.radians(-90), math.radians(90)),  # 0
    Part.LineSegment(App.Vector(8, 12, 0), App.Vector(2, 12, 0)),  # 1
    Part.ArcOfCircle(Part.Circle(App.Vector(2, 12.6, 0), App.Vector(0, 0, 1), 0.6), math.radians(90), math.radians(270)),  # 2
    Part.LineSegment(App.Vector(2, 13.2, 0), App.Vector(8, 13.2, 0)),  # 3
    Part.ArcOfCircle(Part.Circle(App.Vector(-2, 12.6, 0), App.Vector(0, 0, 1), 0.6), math.radians(-90), math.radians(90)),  # 4
    Part.LineSegment(App.Vector(-2, 12, 0), App.Vector(-8, 12, 0)),  # 5
    Part.ArcOfCircle(Part.Circle(App.Vector(-8, 12.6, 0), App.Vector(0, 0, 1), 0.6), math.radians(90), math.radians(270)),  # 6
    Part.LineSegment(App.Vector(-8, 13.2, 0), App.Vector(-2, 13.2, 0)),  # 7
], False)
sketch13.addConstraint([
    Sketcher.Constraint("Tangent", 0, 1, 1, 1),
    Sketcher.Constraint("Tangent", 1, 2, 2, 2),
    Sketcher.Constraint("Tangent", 2, 1, 3, 1),
    Sketcher.Constraint("Tangent", 3, 2, 0, 2),
    Sketcher.Constraint("Tangent", 4, 1, 5, 1),
    Sketcher.Constraint("Tangent", 5, 2, 6, 2),
    Sketcher.Constraint("Tangent", 6, 1, 7, 1),
    Sketcher.Constraint("Tangent", 7, 2, 4, 2),
    Sketcher.Constraint("Horizontal", 1),
    Sketcher.Constraint("Horizontal", 3),
    Sketcher.Constraint("Horizontal", 5),
    Sketcher.Constraint("Horizontal", 7),
    Sketcher.Constraint("Equal", 2, 4),
    Sketcher.Constraint("Symmetric", 2, 3, 4, 3, -2),
    Sketcher.Constraint("Equal", 3, 5),
    Sketcher.Constraint("Radius", 0, Q("0.6 mm")),
    Sketcher.Constraint("DistanceX", 1, 2, 1, 1, Q("6 mm")),
    Sketcher.Constraint("DistanceX", -1, 1, 0, 3, Q("8 mm")),
    Sketcher.Constraint("DistanceY", -1, 1, 0, 1, Q("12 mm")),
])
pocket10 = doc.addObject("PartDesign::Pocket", "Pocket009")
body.addObject(pocket10)
pocket10.Profile = sketch13
pocket10.Length = 2.8
pocket10.Reversed = True

# Sketch on XZ plane
sketch14 = doc.addObject("Sketcher::SketchObject", "Sketch013")
body.addObject(sketch14)
sketch14.AttachmentSupport = (doc.XZ_Plane, [""])
sketch14.MapMode = "FlatFace"
sketch14.AttachmentOffset = App.Placement(App.Vector(0, 0, 50.5), App.Rotation())
sketch14.addGeometry([
    Part.LineSegment(App.Vector(-25, 18, 0), App.Vector(-25, 13, 0)),
    Part.LineSegment(App.Vector(-25, 13, 0), App.Vector(-12, 13, 0)),
    Part.LineSegment(App.Vector(-12, 13, 0), App.Vector(-12, 18, 0)),
    Part.LineSegment(App.Vector(-12, 18, 0), App.Vector(-25, 18, 0)),
], False)
sketch14.addConstraint([
    Sketcher.Constraint("Coincident", 0, 2, 1, 1),
    Sketcher.Constraint("Coincident", 1, 2, 2, 1),
    Sketcher.Constraint("Coincident", 2, 2, 3, 1),
    Sketcher.Constraint("Coincident", 3, 2, 0, 1),
    Sketcher.Constraint("Vertical", 0),
    Sketcher.Constraint("Horizontal", 1),
    Sketcher.Constraint("Vertical", 2),
    Sketcher.Constraint("Horizontal", 3),
    Sketcher.Constraint("DistanceX", 1, 1, 1, 2, Q("13 mm")),
    Sketcher.Constraint("DistanceY", 0, 2, 0, 1, Q("5 mm")),
    Sketcher.Constraint("DistanceX", 0, 2, -1, 1, Q("25.4 mm")),
    Sketcher.Constraint("DistanceY", -1, 1, 0, 2, Q("12.8 mm")),
])
pocket11 = doc.addObject("PartDesign::Pocket", "Pocket010")
body.addObject(pocket11)
pocket11.Profile = sketch14
pocket11.Length = 2.8

doc.recompute()
